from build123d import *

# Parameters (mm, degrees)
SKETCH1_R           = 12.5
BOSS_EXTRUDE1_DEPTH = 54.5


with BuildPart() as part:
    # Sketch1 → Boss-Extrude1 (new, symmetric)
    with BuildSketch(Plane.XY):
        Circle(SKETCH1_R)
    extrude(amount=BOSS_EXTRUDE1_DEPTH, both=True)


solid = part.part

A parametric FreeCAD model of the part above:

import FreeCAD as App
import Part
import Sketcher

V = App.Vector

doc = App.newDocument("Part")
body = doc.addObject("PartDesign::Body", "Body")

sketch1 = body.newObject("Sketcher::SketchObject", "Sketch")
sketch1.AttachmentSupport = (doc.getObject("XY_Plane"), [""])
sketch1.MapMode = "FlatFace"
sketch1.addGeometry(Part.Circle(V(0, 0, 0), V(0, 0, 1), 12.5), False)
sketch1.addConstraint(Sketcher.Constraint("Coincident", 0, 3, -1, 1))
sketch1.addConstraint(Sketcher.Constraint("Diameter", 0, 25.0))
pad1 = body.newObject("PartDesign::Pad", "Pad")
pad1.Profile = sketch1
pad1.Length = 109
pad1.Midplane = True

doc.recompute()
